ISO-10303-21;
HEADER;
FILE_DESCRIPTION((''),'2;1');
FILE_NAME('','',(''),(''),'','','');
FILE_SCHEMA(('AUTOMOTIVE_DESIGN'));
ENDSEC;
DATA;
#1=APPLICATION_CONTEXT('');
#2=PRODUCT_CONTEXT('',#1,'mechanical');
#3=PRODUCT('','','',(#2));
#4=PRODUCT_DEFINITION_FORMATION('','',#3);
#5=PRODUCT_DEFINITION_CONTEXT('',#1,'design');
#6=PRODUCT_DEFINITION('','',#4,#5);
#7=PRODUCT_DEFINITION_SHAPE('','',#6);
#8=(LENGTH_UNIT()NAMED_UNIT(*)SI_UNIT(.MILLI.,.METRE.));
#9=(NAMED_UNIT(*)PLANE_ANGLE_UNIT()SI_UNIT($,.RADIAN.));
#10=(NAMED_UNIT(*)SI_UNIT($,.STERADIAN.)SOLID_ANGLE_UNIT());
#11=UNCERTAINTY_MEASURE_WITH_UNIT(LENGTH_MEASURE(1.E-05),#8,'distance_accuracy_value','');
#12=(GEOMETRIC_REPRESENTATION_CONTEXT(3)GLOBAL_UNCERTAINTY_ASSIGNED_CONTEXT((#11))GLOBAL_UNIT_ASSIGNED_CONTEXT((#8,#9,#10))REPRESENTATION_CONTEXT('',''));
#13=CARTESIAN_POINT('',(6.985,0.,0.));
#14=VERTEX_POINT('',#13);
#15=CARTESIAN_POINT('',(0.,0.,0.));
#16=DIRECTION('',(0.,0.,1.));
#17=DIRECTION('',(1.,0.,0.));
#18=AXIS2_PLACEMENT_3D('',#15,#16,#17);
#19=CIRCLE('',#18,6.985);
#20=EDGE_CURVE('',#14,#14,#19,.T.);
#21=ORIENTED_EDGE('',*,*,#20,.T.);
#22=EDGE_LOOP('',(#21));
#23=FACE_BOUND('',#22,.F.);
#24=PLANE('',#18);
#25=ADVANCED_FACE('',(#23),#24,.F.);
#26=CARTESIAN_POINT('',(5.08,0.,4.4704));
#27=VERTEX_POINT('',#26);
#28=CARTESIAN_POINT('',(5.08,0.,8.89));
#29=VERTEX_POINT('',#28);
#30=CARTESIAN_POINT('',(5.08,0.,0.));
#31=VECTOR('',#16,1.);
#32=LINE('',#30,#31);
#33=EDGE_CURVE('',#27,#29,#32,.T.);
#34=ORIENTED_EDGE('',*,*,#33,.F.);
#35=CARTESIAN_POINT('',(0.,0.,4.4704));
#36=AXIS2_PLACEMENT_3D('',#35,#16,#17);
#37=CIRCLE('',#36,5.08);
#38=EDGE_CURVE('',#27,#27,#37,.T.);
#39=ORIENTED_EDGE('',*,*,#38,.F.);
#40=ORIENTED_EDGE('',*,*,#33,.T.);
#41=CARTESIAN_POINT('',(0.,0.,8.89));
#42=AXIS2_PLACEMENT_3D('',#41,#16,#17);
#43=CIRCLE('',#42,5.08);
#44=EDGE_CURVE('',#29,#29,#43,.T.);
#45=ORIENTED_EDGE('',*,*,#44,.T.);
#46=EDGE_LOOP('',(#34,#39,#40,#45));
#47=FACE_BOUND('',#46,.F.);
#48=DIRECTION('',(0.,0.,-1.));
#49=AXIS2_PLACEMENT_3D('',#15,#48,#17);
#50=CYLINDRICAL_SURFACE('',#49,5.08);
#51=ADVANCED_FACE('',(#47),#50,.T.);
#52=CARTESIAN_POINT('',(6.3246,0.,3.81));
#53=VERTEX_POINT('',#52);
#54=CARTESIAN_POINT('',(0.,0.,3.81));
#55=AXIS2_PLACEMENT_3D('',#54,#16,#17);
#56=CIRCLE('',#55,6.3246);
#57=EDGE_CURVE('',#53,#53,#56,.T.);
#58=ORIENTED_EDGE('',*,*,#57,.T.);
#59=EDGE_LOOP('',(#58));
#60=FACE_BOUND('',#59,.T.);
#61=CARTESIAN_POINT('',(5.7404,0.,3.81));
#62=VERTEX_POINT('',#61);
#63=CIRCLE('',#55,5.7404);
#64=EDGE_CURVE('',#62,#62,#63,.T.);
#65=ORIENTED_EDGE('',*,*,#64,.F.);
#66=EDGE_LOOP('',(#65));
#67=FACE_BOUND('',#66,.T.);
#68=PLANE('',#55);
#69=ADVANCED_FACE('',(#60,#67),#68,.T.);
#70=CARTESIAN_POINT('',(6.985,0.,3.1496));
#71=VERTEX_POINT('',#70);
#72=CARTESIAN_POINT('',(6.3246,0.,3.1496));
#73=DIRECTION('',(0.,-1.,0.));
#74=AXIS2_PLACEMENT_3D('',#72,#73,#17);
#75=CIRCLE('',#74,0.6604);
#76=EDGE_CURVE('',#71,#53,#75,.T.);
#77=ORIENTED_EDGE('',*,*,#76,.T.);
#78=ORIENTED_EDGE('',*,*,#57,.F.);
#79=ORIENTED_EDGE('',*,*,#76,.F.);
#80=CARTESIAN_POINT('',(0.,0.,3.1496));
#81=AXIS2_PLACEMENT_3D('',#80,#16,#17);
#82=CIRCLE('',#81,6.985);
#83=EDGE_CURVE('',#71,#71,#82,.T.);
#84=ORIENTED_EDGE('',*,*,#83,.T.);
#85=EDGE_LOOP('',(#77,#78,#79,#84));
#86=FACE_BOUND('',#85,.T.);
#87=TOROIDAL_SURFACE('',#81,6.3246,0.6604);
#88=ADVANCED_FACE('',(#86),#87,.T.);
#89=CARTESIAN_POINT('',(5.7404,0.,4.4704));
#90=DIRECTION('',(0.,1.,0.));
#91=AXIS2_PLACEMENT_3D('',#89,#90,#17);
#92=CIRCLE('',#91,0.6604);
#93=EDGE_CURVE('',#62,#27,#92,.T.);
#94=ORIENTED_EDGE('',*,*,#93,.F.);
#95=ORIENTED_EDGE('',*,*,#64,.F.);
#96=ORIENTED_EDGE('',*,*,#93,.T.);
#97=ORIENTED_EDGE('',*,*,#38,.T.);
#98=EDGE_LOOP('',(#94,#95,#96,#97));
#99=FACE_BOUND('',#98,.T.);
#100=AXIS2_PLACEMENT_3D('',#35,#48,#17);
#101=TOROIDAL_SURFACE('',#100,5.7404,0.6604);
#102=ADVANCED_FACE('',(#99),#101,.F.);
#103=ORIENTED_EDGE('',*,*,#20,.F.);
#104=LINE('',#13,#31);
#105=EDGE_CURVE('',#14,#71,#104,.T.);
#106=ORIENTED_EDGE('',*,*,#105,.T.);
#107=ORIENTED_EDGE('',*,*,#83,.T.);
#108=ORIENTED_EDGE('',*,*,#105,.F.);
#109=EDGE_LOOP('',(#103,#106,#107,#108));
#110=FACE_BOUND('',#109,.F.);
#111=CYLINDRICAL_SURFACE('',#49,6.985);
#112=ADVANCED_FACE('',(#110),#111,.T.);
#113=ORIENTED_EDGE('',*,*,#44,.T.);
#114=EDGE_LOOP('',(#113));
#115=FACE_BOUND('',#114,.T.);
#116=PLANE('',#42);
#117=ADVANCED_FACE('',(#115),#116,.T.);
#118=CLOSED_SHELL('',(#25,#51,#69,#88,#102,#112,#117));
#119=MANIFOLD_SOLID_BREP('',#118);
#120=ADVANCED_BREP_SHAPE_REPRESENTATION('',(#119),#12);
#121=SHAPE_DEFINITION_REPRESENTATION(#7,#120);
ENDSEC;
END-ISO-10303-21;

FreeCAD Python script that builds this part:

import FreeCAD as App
import Part
import Sketcher
Q = App.Units.Quantity


def edges_at(feature, points):
    """Names of the edges that pass closest to the given points."""
    edges = feature.Shape.Edges
    near = lambda p: min(range(len(edges)), key=lambda i: edges[i].distToShape(Part.Vertex(*p))[0])
    return sorted({f"Edge{near(p) + 1}" for p in points})

doc = App.newDocument("Part")
body = doc.addObject("PartDesign::Body", "Body")

# Sketch on XY plane
sketch1 = doc.addObject("Sketcher::SketchObject", "Sketch")
body.addObject(sketch1)
sketch1.AttachmentSupport = (doc.XY_Plane, [""])
sketch1.MapMode = "FlatFace"
sketch1.addGeometry(Part.Circle(App.Vector(0, 0, 0), App.Vector(0, 0, 1), 5.08), False)
sketch1.addConstraint([
    Sketcher.Constraint("Coincident", 0, 3, -1, 1),
    Sketcher.Constraint("Diameter", 0, Q("0.4 in")),
])
pad1 = doc.addObject("PartDesign::Pad", "Pad")
body.addObject(pad1)
pad1.Profile = sketch1
pad1.Length = Q("0.35 in")

# Sketch on XY plane
sketch2 = doc.addObject("Sketcher::SketchObject", "Sketch001")
body.addObject(sketch2)
sketch2.AttachmentSupport = (doc.XY_Plane, [""])
sketch2.MapMode = "FlatFace"
sketch2.addGeometry([
    Part.Circle(App.Vector(0, 0, 0), App.Vector(0, 0, 1), 6.985),
    Part.Circle(App.Vector(0, 0, 0), App.Vector(0, 0, 1), 5.08),
], False)
sketch2.addConstraint([
    Sketcher.Constraint("Coincident", 0, 3, -1, 1),
    Sketcher.Constraint("Coincident", 1, 3, -1, 1),
    Sketcher.Constraint("Diameter", 1, Q("0.4 in")),
    Sketcher.Constraint("Diameter", 0, Q("0.55 in")),
])
pad2 = doc.addObject("PartDesign::Pad", "Pad001")
body.addObject(pad2)
pad2.Profile = sketch2
pad2.Length = Q("0.15 in")
doc.recompute()

fillet = doc.addObject("PartDesign::Fillet", "Fillet")
body.addObject(fillet)
fillet.Base = (pad2, edges_at(pad2, [(-6.985, 0, 3.81), (-5.08, 0, 3.81)]))
fillet.Radius = Q("0.026 in")

doc.recompute()
